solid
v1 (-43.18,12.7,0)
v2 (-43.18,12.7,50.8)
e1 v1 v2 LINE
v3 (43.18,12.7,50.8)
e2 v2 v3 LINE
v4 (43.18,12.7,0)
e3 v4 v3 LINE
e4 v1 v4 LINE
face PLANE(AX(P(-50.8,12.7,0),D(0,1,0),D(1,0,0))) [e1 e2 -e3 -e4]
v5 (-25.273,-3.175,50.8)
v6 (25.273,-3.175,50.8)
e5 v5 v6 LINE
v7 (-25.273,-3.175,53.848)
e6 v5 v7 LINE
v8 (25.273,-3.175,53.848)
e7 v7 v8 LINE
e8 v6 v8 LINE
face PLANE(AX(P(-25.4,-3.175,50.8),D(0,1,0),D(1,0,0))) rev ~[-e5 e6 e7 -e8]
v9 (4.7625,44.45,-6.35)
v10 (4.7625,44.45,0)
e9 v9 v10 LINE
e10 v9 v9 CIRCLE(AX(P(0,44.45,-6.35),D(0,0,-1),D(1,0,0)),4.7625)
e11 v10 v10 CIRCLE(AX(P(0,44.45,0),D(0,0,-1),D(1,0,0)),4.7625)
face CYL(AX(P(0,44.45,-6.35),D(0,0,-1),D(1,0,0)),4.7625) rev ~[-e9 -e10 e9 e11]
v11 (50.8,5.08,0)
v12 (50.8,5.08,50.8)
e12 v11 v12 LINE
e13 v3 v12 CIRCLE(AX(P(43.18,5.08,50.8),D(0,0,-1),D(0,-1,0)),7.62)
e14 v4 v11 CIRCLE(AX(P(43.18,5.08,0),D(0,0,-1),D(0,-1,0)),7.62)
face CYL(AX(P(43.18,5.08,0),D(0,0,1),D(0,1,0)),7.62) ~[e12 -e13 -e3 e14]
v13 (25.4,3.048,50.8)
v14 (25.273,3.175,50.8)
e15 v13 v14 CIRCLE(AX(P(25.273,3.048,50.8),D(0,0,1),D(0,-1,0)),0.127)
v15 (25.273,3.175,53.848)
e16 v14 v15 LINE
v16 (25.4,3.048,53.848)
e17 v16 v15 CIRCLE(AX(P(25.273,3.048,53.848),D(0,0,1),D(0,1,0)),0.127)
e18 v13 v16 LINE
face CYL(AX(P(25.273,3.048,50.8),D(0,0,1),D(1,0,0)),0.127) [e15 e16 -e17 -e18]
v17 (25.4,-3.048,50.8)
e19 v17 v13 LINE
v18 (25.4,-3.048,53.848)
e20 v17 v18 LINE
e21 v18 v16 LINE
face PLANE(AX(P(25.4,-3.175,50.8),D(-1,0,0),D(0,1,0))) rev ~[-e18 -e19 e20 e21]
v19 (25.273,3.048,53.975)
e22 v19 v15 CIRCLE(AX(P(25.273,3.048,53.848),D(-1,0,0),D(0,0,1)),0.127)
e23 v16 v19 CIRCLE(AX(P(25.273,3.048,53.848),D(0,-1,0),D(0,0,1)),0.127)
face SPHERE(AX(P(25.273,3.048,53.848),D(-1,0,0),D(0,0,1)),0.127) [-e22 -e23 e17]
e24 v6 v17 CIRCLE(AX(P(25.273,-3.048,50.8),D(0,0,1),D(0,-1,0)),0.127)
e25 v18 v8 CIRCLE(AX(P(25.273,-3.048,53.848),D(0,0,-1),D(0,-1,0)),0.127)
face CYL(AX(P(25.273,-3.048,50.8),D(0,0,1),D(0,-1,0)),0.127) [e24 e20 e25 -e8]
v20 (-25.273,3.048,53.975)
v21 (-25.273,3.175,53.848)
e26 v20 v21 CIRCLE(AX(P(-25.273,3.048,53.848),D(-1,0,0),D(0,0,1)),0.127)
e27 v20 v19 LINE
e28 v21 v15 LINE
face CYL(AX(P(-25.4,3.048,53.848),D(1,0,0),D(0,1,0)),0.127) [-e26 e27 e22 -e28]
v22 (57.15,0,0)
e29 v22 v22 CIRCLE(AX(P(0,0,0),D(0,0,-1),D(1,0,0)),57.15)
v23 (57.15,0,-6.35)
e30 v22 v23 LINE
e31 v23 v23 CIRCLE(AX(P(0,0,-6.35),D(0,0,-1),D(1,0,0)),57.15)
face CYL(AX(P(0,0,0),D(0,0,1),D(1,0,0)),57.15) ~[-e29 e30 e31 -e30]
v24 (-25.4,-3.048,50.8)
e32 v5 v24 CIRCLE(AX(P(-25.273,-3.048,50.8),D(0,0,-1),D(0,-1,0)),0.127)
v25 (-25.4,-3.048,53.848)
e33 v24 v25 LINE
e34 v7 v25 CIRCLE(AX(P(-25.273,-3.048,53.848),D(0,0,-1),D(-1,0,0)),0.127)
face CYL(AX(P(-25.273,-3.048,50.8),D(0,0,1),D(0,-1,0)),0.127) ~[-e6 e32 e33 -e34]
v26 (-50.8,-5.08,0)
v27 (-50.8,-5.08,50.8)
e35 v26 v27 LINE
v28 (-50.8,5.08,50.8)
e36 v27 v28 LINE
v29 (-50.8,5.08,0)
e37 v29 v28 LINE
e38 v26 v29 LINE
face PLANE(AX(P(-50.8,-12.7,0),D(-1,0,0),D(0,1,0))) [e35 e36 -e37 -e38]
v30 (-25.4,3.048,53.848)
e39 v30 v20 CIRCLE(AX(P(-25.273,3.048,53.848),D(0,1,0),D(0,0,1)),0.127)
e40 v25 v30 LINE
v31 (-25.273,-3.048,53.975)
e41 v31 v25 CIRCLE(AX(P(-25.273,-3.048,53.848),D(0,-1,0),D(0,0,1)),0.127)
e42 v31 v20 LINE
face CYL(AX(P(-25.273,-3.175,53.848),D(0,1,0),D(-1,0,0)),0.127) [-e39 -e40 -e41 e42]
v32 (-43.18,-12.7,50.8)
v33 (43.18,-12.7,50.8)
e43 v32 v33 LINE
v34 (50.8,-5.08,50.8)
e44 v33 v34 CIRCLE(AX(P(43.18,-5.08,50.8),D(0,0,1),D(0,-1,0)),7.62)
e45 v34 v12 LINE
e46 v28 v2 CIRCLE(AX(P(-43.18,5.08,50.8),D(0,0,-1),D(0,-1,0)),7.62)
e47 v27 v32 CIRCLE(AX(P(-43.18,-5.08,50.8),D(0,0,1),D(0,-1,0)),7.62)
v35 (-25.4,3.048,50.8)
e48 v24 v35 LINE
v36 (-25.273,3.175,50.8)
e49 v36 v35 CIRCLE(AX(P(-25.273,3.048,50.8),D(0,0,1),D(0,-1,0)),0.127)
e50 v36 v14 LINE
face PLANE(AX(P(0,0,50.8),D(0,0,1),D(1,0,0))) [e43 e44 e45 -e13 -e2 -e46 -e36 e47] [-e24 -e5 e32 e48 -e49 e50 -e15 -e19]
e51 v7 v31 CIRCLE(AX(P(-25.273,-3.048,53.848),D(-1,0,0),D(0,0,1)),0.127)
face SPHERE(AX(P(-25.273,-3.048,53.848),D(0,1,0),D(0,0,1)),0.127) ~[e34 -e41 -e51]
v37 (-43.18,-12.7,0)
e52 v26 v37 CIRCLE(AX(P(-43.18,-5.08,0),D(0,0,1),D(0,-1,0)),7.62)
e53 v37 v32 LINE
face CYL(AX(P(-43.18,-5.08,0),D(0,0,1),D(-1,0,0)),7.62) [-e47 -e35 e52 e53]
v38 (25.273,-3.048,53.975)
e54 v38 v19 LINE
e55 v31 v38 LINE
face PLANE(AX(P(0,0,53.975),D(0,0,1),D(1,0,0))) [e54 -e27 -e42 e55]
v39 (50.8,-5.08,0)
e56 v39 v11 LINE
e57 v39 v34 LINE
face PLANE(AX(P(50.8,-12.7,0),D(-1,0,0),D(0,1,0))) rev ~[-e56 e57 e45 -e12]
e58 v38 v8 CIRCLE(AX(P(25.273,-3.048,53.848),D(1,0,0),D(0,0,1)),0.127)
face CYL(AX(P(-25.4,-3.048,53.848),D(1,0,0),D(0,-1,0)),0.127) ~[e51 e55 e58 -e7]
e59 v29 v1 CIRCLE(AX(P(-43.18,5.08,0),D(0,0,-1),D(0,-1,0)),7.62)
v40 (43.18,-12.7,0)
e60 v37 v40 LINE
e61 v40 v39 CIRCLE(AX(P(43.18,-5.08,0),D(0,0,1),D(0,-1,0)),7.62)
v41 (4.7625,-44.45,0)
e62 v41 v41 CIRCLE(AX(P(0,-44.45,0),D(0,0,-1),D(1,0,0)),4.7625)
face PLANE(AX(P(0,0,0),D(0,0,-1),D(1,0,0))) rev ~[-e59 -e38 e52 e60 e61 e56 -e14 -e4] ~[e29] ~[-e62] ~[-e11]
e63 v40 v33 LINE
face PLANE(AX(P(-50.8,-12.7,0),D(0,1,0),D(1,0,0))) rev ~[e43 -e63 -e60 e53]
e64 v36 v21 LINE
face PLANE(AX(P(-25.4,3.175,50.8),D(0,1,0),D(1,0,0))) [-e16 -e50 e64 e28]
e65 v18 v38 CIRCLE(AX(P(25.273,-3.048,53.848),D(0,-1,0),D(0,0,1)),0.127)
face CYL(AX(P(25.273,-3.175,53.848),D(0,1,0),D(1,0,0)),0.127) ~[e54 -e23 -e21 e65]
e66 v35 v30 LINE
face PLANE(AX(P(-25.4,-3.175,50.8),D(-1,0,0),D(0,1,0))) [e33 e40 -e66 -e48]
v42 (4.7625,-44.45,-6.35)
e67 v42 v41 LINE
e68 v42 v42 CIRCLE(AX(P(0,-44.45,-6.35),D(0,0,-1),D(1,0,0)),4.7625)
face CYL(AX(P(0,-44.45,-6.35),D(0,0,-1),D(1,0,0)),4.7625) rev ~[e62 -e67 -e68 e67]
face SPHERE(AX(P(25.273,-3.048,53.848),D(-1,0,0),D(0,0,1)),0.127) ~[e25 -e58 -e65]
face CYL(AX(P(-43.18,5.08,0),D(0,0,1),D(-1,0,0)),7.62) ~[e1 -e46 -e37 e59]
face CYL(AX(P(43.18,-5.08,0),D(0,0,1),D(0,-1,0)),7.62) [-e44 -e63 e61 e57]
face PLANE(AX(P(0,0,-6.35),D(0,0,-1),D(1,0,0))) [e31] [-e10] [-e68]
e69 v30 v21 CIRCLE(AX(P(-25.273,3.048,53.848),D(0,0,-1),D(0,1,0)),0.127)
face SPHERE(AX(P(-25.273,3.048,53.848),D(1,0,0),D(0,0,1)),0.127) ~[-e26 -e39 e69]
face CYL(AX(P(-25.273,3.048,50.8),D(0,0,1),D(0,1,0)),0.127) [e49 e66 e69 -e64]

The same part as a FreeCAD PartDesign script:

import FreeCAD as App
import Part
import Sketcher
from FreeCAD import Vector
Q = App.Units.Quantity


def edges_at(feature, points):
    """Names of the edges that pass closest to the given points."""
    edges = feature.Shape.Edges
    near = lambda p: min(range(len(edges)), key=lambda i: edges[i].distToShape(Part.Vertex(*p))[0])
    return sorted({f"Edge{near(p) + 1}" for p in points})

doc = App.newDocument("Part")
body = doc.addObject("PartDesign::Body", "Body")

# Sketch on XY plane
sketch1 = body.newObject("Sketcher::SketchObject", "Sketch")
sketch1.AttachmentSupport = (doc.getObject("XY_Plane"), [""])
sketch1.MapMode = "FlatFace"
sketch1.addGeometry([
    Part.LineSegment(Vector(-50.8, 12.7, 0), Vector(-50.8, -12.7, 0)),
    Part.LineSegment(Vector(-50.8, -12.7, 0), Vector(50.8, -12.7, 0)),
    Part.LineSegment(Vector(50.8, -12.7, 0), Vector(50.8, 12.7, 0)),
    Part.LineSegment(Vector(50.8, 12.7, 0), Vector(-50.8, 12.7, 0)),
], False)
sketch1.addConstraint([
    Sketcher.Constraint("Coincident", 0, 2, 1, 1),
    Sketcher.Constraint("Coincident", 1, 2, 2, 1),
    Sketcher.Constraint("Coincident", 2, 2, 3, 1),
    Sketcher.Constraint("Coincident", 3, 2, 0, 1),
    Sketcher.Constraint("Vertical", 0),
    Sketcher.Constraint("Horizontal", 1),
    Sketcher.Constraint("Vertical", 2),
    Sketcher.Constraint("Horizontal", 3),
    Sketcher.Constraint("Symmetric", 0, 2, 2, 2, -1, 1),
    Sketcher.Constraint("DistanceX", 1, 1, 1, 2, Q("4 in")),
    Sketcher.Constraint("DistanceY", 0, 2, 0, 1, Q("1 in")),
])
pad1 = body.newObject("PartDesign::Pad", "Pad")
pad1.Profile = sketch1
pad1.Length = Q("2 in")

# Sketch on XY plane
sketch2 = body.newObject("Sketcher::SketchObject", "Sketch001")
sketch2.AttachmentSupport = (doc.getObject("XY_Plane"), [""])
sketch2.MapMode = "FlatFace"
sketch2.AttachmentOffset = App.Placement(Vector(0, 0, 2 * 25.4), App.Rotation())
sketch2.addGeometry([
    Part.LineSegment(Vector(-25.4, 3.175, 0), Vector(-25.4, -3.175, 0)),
    Part.LineSegment(Vector(-25.4, -3.175, 0), Vector(25.4, -3.175, 0)),
    Part.LineSegment(Vector(25.4, -3.175, 0), Vector(25.4, 3.175, 0)),
    Part.LineSegment(Vector(25.4, 3.175, 0), Vector(-25.4, 3.175, 0)),
], False)
sketch2.addConstraint([
    Sketcher.Constraint("Coincident", 0, 2, 1, 1),
    Sketcher.Constraint("Coincident", 1, 2, 2, 1),
    Sketcher.Constraint("Coincident", 2, 2, 3, 1),
    Sketcher.Constraint("Coincident", 3, 2, 0, 1),
    Sketcher.Constraint("Vertical", 0),
    Sketcher.Constraint("Horizontal", 1),
    Sketcher.Constraint("Vertical", 2),
    Sketcher.Constraint("Horizontal", 3),
    Sketcher.Constraint("Symmetric", 0, 2, 2, 2, -1, 1),
    Sketcher.Constraint("DistanceX", 1, 1, 1, 2, Q("2 in")),
    Sketcher.Constraint("DistanceY", 0, 2, 0, 1, Q("0.25 in")),
])
pad2 = body.newObject("PartDesign::Pad", "Pad001")
pad2.Profile = sketch2
pad2.Length = Q("0.125 in")

# Sketch on XY plane
sketch3 = body.newObject("Sketcher::SketchObject", "Sketch002")
sketch3.AttachmentSupport = (doc.getObject("XY_Plane"), [""])
sketch3.MapMode = "FlatFace"
sketch3.addGeometry(Part.Circle(Vector(0, 0, 0), Vector(0, 0, 1), 57.15), False)
sketch3.addConstraint([
    Sketcher.Constraint("Coincident", 0, 3, -1, 1),
    Sketcher.Constraint("Diameter", 0, Q("4.5 in")),
])
pad3 = body.newObject("PartDesign::Pad", "Pad002")
pad3.Profile = sketch3
pad3.Length = Q("0.25 in")
pad3.Reversed = True

# Sketch on XY plane
sketch4 = body.newObject("Sketcher::SketchObject", "Sketch003")
sketch4.AttachmentSupport = (doc.getObject("XY_Plane"), [""])
sketch4.MapMode = "FlatFace"
sketch4.AttachmentOffset = App.Placement(Vector(0, 0, -0.25 * 25.4), App.Rotation())
sketch4.addGeometry([
    Part.Circle(Vector(0, -44.45, 0), Vector(0, 0, 1), 4.7625),
    Part.Circle(Vector(0, 44.45, 0), Vector(0, 0, 1), 4.7625),
], False)
sketch4.addConstraint([
    Sketcher.Constraint("Equal", 0, 1),
    Sketcher.Constraint("Symmetric", 0, 3, 1, 3, -1, 1),
    Sketcher.Constraint("PointOnObject", 0, 3, -2),
    Sketcher.Constraint("Diameter", 0, Q("0.375 in")),
    Sketcher.Constraint("DistanceY", 0, 3, 1, 3, Q("3.5 in")),
])
pocket1 = body.newObject("PartDesign::Pocket", "Pocket")
pocket1.Profile = sketch4
pocket1.Length = Q("1 in")
pocket1.Reversed = True
doc.recompute()

fillet = body.newObject("PartDesign::Fillet", "Fillet")
fillet.Base = (pocket1, edges_at(pocket1, [
    (50.8, -12.7, 25.4),
    (50.8, 12.7, 25.4),
    (-50.8, -12.7, 25.4),
    (-50.8, 12.7, 25.4),
]))
fillet.Radius = Q("0.3 in")
doc.recompute()

fillet2 = body.newObject("PartDesign::Fillet", "Fillet001")
fillet2.Base = (fillet, edges_at(fillet, [
    (0, 3.175, 53.975),
    (-25.4, 0, 53.975),
    (0, -3.175, 53.975),
    (25.4, 0, 53.975),
    (25.4, -3.175, 52.388),
    (25.4, 3.175, 52.388),
    (-25.4, -3.175, 52.388),
    (-25.4, 3.175, 52.388),
]))
fillet2.Radius = Q("0.005 in")

doc.recompute()
